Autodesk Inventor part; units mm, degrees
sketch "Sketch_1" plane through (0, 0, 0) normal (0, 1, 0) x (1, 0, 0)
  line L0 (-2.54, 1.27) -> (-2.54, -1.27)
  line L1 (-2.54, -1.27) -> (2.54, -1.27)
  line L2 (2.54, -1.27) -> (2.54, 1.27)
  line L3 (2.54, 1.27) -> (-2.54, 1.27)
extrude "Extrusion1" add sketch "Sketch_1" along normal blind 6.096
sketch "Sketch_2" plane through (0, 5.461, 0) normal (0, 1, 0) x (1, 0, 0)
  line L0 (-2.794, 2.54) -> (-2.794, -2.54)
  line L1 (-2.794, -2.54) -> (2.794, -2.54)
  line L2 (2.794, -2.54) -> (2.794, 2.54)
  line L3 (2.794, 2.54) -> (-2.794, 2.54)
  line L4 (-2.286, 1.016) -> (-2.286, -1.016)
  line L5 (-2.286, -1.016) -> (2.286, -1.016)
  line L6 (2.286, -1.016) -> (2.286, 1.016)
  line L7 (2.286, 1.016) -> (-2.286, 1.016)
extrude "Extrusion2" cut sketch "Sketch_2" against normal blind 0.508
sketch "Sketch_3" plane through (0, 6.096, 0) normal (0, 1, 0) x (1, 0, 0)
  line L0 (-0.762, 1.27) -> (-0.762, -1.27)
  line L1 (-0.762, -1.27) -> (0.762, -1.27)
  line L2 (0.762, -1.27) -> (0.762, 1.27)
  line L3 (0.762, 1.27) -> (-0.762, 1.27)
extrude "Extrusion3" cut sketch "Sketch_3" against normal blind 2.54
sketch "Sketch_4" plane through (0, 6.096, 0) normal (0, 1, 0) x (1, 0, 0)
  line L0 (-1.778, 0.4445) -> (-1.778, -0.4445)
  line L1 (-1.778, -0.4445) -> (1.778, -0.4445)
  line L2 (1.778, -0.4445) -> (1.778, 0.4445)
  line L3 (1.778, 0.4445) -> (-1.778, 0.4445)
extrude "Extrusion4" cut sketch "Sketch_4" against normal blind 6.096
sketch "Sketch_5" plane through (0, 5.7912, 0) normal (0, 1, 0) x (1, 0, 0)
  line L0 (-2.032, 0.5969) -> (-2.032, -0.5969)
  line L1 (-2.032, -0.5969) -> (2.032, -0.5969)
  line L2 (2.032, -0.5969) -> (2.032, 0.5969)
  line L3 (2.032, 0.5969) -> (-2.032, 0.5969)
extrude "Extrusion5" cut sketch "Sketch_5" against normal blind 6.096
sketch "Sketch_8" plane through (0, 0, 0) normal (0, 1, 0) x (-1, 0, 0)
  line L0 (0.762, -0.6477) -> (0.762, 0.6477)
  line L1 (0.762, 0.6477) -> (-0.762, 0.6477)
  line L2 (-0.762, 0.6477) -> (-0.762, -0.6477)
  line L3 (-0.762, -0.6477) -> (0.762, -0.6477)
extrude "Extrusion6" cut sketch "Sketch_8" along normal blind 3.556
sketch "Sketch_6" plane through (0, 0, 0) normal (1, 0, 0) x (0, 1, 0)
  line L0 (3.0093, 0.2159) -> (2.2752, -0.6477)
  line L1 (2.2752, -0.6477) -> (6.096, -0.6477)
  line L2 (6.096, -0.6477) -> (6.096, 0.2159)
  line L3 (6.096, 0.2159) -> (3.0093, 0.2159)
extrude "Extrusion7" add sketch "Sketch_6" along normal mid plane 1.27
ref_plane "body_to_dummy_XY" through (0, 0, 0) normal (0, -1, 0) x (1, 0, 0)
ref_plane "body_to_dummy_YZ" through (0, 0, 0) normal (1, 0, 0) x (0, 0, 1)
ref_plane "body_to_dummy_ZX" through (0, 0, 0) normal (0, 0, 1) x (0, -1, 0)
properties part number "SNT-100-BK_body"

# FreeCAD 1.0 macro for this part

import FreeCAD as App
import Part
import Sketcher

V = App.Vector
Q = App.Units.Quantity


def add_polygon(sketch, points):
    """Adds a closed chain of lines whose ends are joined by coincident constraints."""
    first, n = sketch.GeometryCount, len(points)
    for a, b in zip(points, points[1:] + points[:1]):
        sketch.addGeometry(Part.LineSegment(App.Vector(*a, 0), App.Vector(*b, 0)), False)
    for i in range(n):
        sketch.addConstraint(Sketcher.Constraint("Coincident", first + i, 2, first + (i + 1) % n, 1))

doc = App.newDocument("Part")
body = doc.addObject("PartDesign::Body", "Body")

sketch1 = body.newObject("Sketcher::SketchObject", "Sketch")
sketch1.AttachmentSupport = (doc.getObject("XZ_Plane"), [""])
sketch1.MapMode = "FlatFace"
add_polygon(sketch1, [(2.5, -1.3), (-2.5, -1.3), (-2.5, 1.3), (2.5, 1.3)])
sketch1.addConstraint([
    Sketcher.Constraint("Horizontal", 0),
    Sketcher.Constraint("Vertical", 1),
    Sketcher.Constraint("Horizontal", 2),
    Sketcher.Constraint("Vertical", 3),
    Sketcher.Constraint("Symmetric", 0, 2, 2, 2, -1, 1),
    Sketcher.Constraint("DistanceX", 0, 2, 0, 1, Q("0.2 in")),
    Sketcher.Constraint("DistanceY", 1, 1, 1, 2, Q("0.1 in")),
])
pad1 = body.newObject("PartDesign::Pad", "Pad")
pad1.Profile = sketch1
pad1.Length = Q("0.24 in")
pad1.Reversed = True

sketch2 = body.newObject("Sketcher::SketchObject", "Sketch001")
sketch2.AttachmentSupport = (doc.getObject("XZ_Plane"), [""])
sketch2.MapMode = "FlatFace"
sketch2.AttachmentOffset = App.Placement(V(0, 0, -0.215 * 25.4), App.Rotation())
add_polygon(sketch2, [(2.8, -2.5), (-2.8, -2.5), (-2.8, 2.5), (2.8, 2.5)])
add_polygon(sketch2, [(-2.3, 1), (-2.3, -1), (2.3, -1), (2.3, 1)])
sketch2.addConstraint([
    Sketcher.Constraint("Horizontal", 0),
    Sketcher.Constraint("Vertical", 1),
    Sketcher.Constraint("Horizontal", 2),
    Sketcher.Constraint("Vertical", 3),
    Sketcher.Constraint("Vertical", 4),
    Sketcher.Constraint("Horizontal", 5),
    Sketcher.Constraint("Vertical", 6),
    Sketcher.Constraint("Horizontal", 7),
    Sketcher.Constraint("Symmetric", 0, 2, 2, 2, -1, 1),
    Sketcher.Constraint("Symmetric", 4, 2, 6, 2, -1, 1),
    Sketcher.Constraint("DistanceY", 1, 1, 1, 2, Q("0.2 in")),
    Sketcher.Constraint("DistanceX", 0, 2, 0, 1, Q("0.22 in")),
    Sketcher.Constraint("DistanceX", 5, 1, 5, 2, Q("0.18 in")),
    Sketcher.Constraint("DistanceY", 4, 2, 4, 1, Q("0.08 in")),
])
pocket1 = body.newObject("PartDesign::Pocket", "Pocket")
pocket1.Profile = sketch2
pocket1.Length = Q("0.02 in")
pocket1.Reversed = True

sketch3 = body.newObject("Sketcher::SketchObject", "Sketch002")
sketch3.AttachmentSupport = (doc.getObject("XZ_Plane"), [""])
sketch3.MapMode = "FlatFace"
sketch3.AttachmentOffset = App.Placement(V(0, 0, -0.24 * 25.4), App.Rotation())
add_polygon(sketch3, [(0.8, -1.3), (-0.8, -1.3), (-0.8, 1.3), (0.8, 1.3)])
sketch3.addConstraint([
    Sketcher.Constraint("Horizontal", 0),
    Sketcher.Constraint("Vertical", 1),
    Sketcher.Constraint("Horizontal", 2),
    Sketcher.Constraint("Vertical", 3),
    Sketcher.Constraint("Symmetric", 0, 2, 2, 2, -1, 1),
    Sketcher.Constraint("DistanceY", 1, 1, 1, 2, Q("0.1 in")),
    Sketcher.Constraint("DistanceX", 0, 2, 0, 1, Q("0.06 in")),
])
pocket2 = body.newObject("PartDesign::Pocket", "Pocket001")
pocket2.Profile = sketch3
pocket2.Length = Q("0.1 in")
pocket2.Reversed = True

sketch4 = body.newObject("Sketcher::SketchObject", "Sketch003")
sketch4.AttachmentSupport = (doc.getObject("XZ_Plane"), [""])
sketch4.MapMode = "FlatFace"
sketch4.AttachmentOffset = App.Placement(V(0, 0, -0.24 * 25.4), App.Rotation())
add_polygon(sketch4, [(1.8, -0.4), (-1.8, -0.4), (-1.8, 0.4), (1.8, 0.4)])
sketch4.addConstraint([
    Sketcher.Constraint("Horizontal", 0),
    Sketcher.Constraint("Vertical", 1),
    Sketcher.Constraint("Horizontal", 2),
    Sketcher.Constraint("Vertical", 3),
    Sketcher.Constraint("Symmetric", 0, 2, 2, 2, -1, 1),
    Sketcher.Constraint("DistanceX", 0, 2, 0, 1, Q("0.14 in")),
    Sketcher.Constraint("DistanceY", 1, 1, 1, 2, Q("0.035 in")),
])
pocket3 = body.newObject("PartDesign::Pocket", "Pocket002")
pocket3.Profile = sketch4
pocket3.Length = Q("0.24 in")
pocket3.Reversed = True

sketch5 = body.newObject("Sketcher::SketchObject", "Sketch004")
sketch5.AttachmentSupport = (doc.getObject("XZ_Plane"), [""])
sketch5.MapMode = "FlatFace"
sketch5.AttachmentOffset = App.Placement(V(0, 0, -0.228 * 25.4), App.Rotation())
add_polygon(sketch5, [(2, -0.6), (-2, -0.6), (-2, 0.6), (2, 0.6)])
sketch5.addConstraint([
    Sketcher.Constraint("Horizontal", 0),
    Sketcher.Constraint("Vertical", 1),
    Sketcher.Constraint("Horizontal", 2),
    Sketcher.Constraint("Vertical", 3),
    Sketcher.Constraint("Symmetric", 0, 2, 2, 2, -1, 1),
    Sketcher.Constraint("DistanceX", 0, 2, 0, 1, Q("0.16 in")),
    Sketcher.Constraint("DistanceY", 1, 1, 1, 2, Q("0.047 in")),
])
pocket4 = body.newObject("PartDesign::Pocket", "Pocket003")
pocket4.Profile = sketch5
pocket4.Length = Q("0.24 in")
pocket4.Reversed = True

sketch6 = body.newObject("Sketcher::SketchObject", "Sketch005")
sketch6.AttachmentSupport = (doc.getObject("XZ_Plane"), [""])
sketch6.MapMode = "FlatFace"
add_polygon(sketch6, [(0.8, -0.6), (-0.8, -0.6), (-0.8, 0.6), (0.8, 0.6)])
sketch6.addConstraint([
    Sketcher.Constraint("Horizontal", 0),
    Sketcher.Constraint("Vertical", 1),
    Sketcher.Constraint("Horizontal", 2),
    Sketcher.Constraint("Vertical", 3),
    Sketcher.Constraint("Symmetric", 0, 2, 2, 2, -1, 1),
    Sketcher.Constraint("DistanceX", 0, 2, 0, 1, Q("0.06 in")),
    Sketcher.Constraint("DistanceY", 1, 1, 1, 2, Q("0.051 in")),
])
pocket5 = body.newObject("PartDesign::Pocket", "Pocket004")
pocket5.Profile = sketch6
pocket5.Length = Q("0.14 in")

sketch7 = body.newObject("Sketcher::SketchObject", "Sketch006")
sketch7.AttachmentSupport = (doc.getObject("YZ_Plane"), [""])
sketch7.MapMode = "FlatFace"
add_polygon(sketch7, [(6.1, 0.2), (3, 0.2), (2.3, -0.6), (6.1, -0.6)])
sketch7.addConstraint([
    Sketcher.Constraint("Horizontal", 0),
    Sketcher.Constraint("Horizontal", 2),
    Sketcher.Constraint("Vertical", 3),
    Sketcher.Constraint("DistanceY", 3, 1, 3, 2, Q("0.034 in")),
    Sketcher.Constraint("DistanceX", -1, 1, 2, 2, Q("0.24 in")),
    Sketcher.Constraint("DistanceX", 0, 2, 0, 1, 3.0867),
    Sketcher.Constraint("DistanceX", 2, 1, 2, 2, 3.8208),
    Sketcher.Constraint("DistanceY", -1, 1, 0, 2, Q("0.0085 in")),
])
pad2 = body.newObject("PartDesign::Pad", "Pad001")
pad2.Profile = sketch7
pad2.Length = Q("0.05 in")
pad2.Midplane = True

doc.recompute()
